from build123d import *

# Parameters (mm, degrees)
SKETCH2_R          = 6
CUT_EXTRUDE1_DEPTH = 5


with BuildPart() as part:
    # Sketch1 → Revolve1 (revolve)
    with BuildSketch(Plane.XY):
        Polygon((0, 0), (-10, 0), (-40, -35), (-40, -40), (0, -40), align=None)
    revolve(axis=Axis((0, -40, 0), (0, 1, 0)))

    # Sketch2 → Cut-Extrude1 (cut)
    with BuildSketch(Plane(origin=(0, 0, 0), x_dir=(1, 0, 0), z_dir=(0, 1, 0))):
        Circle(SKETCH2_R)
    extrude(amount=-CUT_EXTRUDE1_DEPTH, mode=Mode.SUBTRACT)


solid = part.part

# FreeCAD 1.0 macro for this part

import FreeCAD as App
import Part
import Sketcher

V = App.Vector


def add_polygon(sketch, points):
    """Adds a closed chain of lines whose ends are joined by coincident constraints."""
    first, n = sketch.GeometryCount, len(points)
    for a, b in zip(points, points[1:] + points[:1]):
        sketch.addGeometry(Part.LineSegment(App.Vector(*a, 0), App.Vector(*b, 0)), False)
    for i in range(n):
        sketch.addConstraint(Sketcher.Constraint("Coincident", first + i, 2, first + (i + 1) % n, 1))

doc = App.newDocument("Part")
body = doc.addObject("PartDesign::Body", "Body")

# Sketch on XY plane
sketch1 = body.newObject("Sketcher::SketchObject", "Sketch")
sketch1.AttachmentSupport = (doc.getObject("XY_Plane"), [""])
sketch1.MapMode = "FlatFace"
add_polygon(sketch1, [(0, 0), (-10, 0), (-40, -35), (-40, -40), (0, -40)])  # lines 0-4
sketch1.addConstraint(Sketcher.Constraint("Horizontal", 0))
sketch1.addConstraint(Sketcher.Constraint("Vertical", 2))
sketch1.addConstraint(Sketcher.Constraint("Horizontal", 3))
sketch1.addConstraint(Sketcher.Constraint("Vertical", 4))
sketch1.addConstraint(Sketcher.Constraint("Coincident", 4, 2, -1, 1))
sketch1.addConstraint(Sketcher.Constraint("Equal", 3, 4))
sketch1.addConstraint(Sketcher.Constraint("DistanceX", 0, 2, 0, 1, 10.0))
sketch1.addConstraint(Sketcher.Constraint("DistanceX", 3, 1, 3, 2, 40.0))
sketch1.addConstraint(Sketcher.Constraint("DistanceY", 2, 2, 2, 1, 5.0))
revolution = body.newObject("PartDesign::Revolution", "Revolution")
revolution.Profile = sketch1
revolution.ReferenceAxis = (sketch1, ["V_Axis"])
revolution.Angle = 360

# Sketch on XZ plane
sketch2 = body.newObject("Sketcher::SketchObject", "Sketch001")
sketch2.AttachmentSupport = (doc.getObject("XZ_Plane"), [""])
sketch2.MapMode = "FlatFace"
sketch2.addGeometry(Part.Circle(V(0, 0, 0), V(0, 0, 1), 6), False)
sketch2.addConstraint(Sketcher.Constraint("Coincident", 0, 3, -1, 1))
sketch2.addConstraint(Sketcher.Constraint("Diameter", 0, 12.0))
pocket1 = body.newObject("PartDesign::Pocket", "Pocket")
pocket1.Profile = sketch2
pocket1.Length = 5
pocket1.Reversed = True

doc.recompute()
